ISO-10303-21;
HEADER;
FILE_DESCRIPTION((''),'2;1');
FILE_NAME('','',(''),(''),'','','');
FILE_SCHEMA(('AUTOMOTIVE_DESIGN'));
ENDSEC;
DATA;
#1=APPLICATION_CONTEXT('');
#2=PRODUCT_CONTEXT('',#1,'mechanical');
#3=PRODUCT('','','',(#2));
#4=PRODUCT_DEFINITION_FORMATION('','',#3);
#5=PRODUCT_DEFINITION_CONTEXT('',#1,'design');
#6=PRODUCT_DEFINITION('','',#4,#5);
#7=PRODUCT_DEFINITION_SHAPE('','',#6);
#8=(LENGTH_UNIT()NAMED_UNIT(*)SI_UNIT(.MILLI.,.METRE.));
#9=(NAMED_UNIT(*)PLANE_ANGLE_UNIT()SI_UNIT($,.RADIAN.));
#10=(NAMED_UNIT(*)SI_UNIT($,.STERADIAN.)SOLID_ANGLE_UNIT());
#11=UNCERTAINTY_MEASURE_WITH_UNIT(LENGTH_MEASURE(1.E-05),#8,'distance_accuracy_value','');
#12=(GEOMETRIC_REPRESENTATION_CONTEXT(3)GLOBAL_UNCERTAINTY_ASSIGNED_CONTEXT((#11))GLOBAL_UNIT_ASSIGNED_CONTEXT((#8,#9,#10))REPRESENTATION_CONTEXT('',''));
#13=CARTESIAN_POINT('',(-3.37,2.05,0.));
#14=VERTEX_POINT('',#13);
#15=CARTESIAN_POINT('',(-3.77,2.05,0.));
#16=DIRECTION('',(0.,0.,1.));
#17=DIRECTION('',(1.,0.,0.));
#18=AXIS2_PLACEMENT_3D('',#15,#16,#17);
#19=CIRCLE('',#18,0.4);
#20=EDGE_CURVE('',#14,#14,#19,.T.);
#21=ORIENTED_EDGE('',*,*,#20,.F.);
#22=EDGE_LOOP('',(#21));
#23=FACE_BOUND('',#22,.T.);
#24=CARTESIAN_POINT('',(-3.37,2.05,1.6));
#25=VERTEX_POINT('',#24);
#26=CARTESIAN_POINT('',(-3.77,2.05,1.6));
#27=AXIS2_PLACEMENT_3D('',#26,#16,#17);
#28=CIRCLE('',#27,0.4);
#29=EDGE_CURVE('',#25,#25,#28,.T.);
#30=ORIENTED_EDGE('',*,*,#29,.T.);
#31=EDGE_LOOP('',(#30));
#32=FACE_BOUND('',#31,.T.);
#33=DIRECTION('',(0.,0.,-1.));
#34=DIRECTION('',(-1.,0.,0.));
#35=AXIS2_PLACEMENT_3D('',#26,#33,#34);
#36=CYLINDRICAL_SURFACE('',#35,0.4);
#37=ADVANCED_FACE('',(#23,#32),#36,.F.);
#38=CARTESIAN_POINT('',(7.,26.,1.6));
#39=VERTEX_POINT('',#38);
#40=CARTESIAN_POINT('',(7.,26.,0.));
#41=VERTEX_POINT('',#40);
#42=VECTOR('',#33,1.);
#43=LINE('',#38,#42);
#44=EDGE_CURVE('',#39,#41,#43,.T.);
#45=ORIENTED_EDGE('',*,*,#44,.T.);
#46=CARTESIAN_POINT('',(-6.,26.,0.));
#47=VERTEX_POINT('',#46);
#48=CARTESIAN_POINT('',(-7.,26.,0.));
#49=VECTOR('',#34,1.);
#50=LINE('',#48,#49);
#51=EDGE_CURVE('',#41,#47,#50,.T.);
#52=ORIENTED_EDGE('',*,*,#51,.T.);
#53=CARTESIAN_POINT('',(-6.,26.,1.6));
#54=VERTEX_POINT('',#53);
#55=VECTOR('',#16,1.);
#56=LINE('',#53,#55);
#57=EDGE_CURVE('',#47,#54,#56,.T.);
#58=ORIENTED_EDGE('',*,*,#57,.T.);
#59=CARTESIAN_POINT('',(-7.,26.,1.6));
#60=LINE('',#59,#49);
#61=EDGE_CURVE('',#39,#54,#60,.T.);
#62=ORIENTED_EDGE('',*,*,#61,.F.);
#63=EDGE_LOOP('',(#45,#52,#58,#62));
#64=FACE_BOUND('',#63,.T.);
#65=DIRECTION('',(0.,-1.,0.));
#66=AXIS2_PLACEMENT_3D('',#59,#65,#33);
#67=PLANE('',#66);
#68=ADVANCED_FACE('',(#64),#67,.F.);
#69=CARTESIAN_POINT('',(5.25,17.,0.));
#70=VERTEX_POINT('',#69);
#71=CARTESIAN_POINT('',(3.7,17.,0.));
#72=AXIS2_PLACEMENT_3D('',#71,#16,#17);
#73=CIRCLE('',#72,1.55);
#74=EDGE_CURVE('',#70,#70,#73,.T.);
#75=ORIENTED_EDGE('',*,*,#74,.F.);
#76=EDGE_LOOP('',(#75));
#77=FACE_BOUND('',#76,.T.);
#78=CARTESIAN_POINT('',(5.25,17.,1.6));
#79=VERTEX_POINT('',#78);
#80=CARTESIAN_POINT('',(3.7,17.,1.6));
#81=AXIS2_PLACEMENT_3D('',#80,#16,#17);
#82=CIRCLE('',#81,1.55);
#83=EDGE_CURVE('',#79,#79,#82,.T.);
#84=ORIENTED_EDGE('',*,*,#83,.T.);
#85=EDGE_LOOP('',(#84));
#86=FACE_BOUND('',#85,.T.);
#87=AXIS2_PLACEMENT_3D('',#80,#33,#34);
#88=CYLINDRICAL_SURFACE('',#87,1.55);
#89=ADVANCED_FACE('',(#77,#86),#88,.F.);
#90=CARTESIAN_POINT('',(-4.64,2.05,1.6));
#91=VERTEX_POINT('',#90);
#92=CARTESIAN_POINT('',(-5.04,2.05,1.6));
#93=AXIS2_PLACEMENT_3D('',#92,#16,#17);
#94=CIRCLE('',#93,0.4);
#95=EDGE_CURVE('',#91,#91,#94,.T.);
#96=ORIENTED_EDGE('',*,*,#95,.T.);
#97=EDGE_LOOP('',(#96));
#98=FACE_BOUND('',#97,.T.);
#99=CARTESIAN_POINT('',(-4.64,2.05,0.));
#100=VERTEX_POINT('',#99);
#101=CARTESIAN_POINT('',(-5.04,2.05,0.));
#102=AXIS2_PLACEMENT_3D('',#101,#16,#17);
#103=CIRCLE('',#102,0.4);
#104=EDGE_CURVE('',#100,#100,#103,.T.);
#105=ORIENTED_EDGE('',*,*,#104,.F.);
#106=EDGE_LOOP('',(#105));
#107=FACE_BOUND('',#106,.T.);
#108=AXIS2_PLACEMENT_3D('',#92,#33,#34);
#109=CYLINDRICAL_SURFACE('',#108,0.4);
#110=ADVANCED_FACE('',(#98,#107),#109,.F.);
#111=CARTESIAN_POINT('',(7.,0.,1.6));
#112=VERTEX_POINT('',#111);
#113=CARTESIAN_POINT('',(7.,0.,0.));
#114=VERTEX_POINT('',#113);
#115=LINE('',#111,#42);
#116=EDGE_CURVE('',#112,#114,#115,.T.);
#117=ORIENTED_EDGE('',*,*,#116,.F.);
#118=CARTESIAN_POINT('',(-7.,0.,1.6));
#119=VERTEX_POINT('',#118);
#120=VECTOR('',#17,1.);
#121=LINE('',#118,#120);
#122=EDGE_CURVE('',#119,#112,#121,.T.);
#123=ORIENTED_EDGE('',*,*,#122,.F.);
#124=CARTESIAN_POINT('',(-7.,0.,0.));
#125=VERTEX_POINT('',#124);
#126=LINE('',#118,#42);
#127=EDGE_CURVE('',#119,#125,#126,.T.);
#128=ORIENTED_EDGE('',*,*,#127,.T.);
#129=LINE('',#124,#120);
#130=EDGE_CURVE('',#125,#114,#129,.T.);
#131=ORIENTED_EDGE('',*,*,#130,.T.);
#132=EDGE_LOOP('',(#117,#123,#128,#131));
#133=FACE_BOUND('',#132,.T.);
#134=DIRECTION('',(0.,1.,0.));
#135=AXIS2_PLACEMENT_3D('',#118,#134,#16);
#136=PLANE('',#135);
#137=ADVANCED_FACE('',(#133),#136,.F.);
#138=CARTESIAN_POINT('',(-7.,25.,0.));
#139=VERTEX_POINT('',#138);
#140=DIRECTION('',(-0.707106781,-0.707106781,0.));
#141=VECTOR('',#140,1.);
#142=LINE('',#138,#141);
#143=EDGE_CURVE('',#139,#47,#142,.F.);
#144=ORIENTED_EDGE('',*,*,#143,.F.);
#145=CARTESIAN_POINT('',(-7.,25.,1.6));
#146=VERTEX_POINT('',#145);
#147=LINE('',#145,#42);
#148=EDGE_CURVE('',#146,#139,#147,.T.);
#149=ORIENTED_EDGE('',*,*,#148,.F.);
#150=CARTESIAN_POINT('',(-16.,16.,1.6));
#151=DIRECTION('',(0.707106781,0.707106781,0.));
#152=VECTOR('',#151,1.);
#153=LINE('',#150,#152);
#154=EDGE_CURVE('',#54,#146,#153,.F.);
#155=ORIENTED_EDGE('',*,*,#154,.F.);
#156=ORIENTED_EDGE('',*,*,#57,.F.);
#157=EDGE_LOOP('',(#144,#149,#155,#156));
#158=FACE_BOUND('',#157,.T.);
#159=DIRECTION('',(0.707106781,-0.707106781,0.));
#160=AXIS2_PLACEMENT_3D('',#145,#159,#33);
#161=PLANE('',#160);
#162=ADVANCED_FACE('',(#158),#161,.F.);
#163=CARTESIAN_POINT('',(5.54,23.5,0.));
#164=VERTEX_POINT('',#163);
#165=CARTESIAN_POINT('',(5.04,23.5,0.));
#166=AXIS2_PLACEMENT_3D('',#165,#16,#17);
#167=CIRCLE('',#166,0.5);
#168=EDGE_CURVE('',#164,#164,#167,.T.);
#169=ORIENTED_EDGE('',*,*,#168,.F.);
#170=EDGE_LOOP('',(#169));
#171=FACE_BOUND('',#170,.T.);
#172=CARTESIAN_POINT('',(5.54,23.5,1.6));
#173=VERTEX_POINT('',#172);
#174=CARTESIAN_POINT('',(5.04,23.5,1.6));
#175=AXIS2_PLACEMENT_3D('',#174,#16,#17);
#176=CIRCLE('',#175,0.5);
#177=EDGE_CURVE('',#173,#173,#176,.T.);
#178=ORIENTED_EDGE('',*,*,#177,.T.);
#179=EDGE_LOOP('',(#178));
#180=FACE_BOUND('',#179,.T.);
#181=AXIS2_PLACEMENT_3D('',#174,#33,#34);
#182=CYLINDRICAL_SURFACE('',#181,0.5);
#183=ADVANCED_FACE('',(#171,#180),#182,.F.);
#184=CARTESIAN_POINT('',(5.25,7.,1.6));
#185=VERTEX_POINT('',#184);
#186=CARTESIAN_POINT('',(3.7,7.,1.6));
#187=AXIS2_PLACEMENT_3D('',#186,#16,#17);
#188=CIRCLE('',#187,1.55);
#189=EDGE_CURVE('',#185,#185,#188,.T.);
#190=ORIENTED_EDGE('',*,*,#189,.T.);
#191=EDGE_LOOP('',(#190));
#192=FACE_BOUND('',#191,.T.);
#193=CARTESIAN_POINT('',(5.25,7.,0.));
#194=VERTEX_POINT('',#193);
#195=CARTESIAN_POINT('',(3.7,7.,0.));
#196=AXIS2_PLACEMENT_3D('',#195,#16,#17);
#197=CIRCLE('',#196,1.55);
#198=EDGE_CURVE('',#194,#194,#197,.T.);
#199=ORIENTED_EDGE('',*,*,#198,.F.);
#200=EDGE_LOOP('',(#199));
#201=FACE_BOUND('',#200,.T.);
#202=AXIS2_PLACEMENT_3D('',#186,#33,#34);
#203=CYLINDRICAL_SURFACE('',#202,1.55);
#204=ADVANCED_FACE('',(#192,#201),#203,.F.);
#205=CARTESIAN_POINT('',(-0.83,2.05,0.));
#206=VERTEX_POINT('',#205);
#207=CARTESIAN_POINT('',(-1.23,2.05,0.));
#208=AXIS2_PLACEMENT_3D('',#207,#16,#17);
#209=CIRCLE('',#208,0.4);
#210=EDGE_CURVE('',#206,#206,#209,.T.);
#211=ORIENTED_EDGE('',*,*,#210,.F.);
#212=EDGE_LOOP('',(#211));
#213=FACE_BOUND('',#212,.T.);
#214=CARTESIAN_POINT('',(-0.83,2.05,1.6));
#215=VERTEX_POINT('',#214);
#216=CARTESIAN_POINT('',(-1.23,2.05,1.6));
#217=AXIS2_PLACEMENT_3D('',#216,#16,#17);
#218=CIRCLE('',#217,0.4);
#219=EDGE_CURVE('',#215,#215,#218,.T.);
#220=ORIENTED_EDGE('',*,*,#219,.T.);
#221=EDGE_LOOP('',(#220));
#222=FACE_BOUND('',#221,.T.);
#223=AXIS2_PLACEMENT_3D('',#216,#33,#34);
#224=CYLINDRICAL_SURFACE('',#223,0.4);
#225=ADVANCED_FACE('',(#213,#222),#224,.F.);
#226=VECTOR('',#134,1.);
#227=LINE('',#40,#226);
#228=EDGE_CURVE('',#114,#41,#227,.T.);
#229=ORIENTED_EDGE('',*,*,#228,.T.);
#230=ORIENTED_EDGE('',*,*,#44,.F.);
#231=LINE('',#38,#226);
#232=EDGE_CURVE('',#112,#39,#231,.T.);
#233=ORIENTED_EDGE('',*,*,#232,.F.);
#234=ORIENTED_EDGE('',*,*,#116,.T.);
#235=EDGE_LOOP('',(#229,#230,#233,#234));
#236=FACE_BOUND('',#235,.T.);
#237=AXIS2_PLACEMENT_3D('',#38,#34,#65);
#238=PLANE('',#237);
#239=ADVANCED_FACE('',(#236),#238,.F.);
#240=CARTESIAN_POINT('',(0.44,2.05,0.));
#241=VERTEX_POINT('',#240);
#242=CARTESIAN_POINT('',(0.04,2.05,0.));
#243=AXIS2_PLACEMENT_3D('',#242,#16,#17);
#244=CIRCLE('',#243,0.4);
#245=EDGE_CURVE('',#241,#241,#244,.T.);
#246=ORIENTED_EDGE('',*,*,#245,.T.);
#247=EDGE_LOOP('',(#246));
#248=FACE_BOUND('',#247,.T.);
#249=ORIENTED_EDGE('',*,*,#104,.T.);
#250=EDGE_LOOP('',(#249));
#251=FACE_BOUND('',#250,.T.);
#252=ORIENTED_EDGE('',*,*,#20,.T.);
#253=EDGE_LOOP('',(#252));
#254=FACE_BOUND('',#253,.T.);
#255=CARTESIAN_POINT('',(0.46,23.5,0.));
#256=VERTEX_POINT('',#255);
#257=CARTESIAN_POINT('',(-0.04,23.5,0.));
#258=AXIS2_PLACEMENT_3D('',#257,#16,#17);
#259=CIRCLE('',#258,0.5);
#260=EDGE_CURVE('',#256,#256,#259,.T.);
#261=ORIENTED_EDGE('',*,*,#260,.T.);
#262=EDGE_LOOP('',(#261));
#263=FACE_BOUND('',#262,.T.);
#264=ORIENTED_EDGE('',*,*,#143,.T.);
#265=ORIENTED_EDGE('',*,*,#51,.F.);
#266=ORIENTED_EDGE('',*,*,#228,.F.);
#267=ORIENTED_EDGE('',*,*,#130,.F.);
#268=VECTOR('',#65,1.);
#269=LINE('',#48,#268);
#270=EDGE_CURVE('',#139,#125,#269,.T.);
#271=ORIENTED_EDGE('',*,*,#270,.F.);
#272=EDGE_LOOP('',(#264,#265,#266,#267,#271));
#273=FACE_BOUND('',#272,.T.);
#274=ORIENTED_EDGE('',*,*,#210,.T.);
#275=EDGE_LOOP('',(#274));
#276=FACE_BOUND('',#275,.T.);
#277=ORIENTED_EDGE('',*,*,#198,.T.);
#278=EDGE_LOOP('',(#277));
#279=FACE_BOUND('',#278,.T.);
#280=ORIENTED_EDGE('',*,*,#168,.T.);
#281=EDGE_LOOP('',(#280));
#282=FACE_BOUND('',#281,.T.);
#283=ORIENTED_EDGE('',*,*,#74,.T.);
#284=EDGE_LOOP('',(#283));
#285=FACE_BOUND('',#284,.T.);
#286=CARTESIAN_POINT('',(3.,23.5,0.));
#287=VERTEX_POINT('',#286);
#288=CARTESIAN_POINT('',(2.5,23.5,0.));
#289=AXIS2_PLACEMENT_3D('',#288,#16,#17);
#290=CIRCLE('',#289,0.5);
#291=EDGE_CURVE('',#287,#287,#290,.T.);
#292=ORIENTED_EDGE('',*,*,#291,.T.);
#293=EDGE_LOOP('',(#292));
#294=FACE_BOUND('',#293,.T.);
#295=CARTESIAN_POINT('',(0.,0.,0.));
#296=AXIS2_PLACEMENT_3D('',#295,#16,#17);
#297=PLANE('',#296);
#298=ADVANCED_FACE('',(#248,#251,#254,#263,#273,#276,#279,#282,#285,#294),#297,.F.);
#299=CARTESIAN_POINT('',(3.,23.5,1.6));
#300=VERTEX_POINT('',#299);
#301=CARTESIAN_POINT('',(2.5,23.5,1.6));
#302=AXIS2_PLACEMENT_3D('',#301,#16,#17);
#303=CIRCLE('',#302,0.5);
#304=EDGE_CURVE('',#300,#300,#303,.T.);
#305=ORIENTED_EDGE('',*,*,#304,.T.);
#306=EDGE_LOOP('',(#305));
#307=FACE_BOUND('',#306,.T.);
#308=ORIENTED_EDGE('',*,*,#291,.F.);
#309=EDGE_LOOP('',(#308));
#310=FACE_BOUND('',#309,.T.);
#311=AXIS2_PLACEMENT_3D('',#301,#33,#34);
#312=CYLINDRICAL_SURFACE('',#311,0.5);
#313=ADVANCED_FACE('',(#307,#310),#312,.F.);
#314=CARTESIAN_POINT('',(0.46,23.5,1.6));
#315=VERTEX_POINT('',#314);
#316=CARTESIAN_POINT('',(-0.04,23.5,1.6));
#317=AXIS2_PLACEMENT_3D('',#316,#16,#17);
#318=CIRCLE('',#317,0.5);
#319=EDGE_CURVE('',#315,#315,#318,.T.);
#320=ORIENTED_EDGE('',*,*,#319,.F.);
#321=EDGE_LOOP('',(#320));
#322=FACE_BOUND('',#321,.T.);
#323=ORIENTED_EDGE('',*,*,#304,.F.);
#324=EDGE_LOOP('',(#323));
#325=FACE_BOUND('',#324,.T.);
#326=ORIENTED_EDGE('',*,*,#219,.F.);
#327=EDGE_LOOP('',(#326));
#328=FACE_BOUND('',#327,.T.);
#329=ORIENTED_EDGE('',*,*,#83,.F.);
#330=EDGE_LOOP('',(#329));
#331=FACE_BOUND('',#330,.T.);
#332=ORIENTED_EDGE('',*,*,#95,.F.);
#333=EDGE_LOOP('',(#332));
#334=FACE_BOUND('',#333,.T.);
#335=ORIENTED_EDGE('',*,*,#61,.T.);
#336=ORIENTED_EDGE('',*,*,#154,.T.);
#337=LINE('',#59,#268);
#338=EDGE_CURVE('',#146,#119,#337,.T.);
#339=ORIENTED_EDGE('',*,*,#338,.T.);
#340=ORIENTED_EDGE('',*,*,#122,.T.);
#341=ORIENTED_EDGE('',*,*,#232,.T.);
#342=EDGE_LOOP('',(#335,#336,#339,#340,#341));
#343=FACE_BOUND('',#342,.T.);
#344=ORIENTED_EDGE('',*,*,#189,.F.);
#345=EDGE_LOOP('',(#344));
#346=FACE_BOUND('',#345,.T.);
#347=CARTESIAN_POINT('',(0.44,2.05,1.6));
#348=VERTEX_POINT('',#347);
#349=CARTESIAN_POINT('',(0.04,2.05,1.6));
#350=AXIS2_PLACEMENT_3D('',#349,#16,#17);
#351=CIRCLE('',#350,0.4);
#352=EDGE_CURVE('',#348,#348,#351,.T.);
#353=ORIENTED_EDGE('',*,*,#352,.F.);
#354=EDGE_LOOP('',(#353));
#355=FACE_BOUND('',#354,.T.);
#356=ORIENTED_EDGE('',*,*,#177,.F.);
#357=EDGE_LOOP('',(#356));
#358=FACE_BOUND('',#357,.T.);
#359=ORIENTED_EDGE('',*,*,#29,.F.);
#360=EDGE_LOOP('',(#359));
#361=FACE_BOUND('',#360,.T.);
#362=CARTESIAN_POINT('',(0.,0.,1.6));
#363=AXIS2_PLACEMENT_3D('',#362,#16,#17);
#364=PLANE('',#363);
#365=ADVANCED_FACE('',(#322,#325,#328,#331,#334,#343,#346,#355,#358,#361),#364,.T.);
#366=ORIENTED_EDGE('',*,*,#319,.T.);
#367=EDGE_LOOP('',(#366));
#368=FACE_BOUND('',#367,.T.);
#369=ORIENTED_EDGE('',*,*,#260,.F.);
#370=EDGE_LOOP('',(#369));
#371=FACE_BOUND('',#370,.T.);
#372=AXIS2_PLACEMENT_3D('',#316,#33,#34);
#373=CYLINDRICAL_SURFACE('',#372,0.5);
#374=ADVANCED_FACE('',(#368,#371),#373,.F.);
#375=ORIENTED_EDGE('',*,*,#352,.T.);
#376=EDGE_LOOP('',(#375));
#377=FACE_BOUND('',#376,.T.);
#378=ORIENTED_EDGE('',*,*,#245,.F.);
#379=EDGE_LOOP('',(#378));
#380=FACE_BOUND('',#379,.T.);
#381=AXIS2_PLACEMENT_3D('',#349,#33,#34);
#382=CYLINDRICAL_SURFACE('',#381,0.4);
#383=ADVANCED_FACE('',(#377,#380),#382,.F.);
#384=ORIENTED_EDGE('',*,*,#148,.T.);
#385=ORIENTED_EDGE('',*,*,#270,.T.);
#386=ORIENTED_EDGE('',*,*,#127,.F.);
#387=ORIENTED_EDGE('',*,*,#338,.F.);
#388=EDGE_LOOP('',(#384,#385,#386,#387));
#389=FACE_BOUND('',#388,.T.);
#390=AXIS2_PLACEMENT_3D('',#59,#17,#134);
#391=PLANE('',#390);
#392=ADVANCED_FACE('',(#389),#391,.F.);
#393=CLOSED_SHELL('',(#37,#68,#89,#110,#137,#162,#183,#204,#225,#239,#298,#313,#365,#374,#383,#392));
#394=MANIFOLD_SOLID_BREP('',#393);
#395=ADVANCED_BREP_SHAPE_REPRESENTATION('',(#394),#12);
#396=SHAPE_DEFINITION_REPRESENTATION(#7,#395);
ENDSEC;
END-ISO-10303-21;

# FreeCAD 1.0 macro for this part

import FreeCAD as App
import Part
import Sketcher

V = App.Vector
Q = App.Units.Quantity


def edges_at(feature, points):
    """Names of the edges that pass closest to the given points."""
    edges = feature.Shape.Edges
    near = lambda p: min(range(len(edges)), key=lambda i: edges[i].distToShape(Part.Vertex(*p))[0])
    return sorted({f"Edge{near(p) + 1}" for p in points})


def add_polygon(sketch, points):
    """Adds a closed chain of lines whose ends are joined by coincident constraints."""
    first, n = sketch.GeometryCount, len(points)
    for a, b in zip(points, points[1:] + points[:1]):
        sketch.addGeometry(Part.LineSegment(App.Vector(*a, 0), App.Vector(*b, 0)), False)
    for i in range(n):
        sketch.addConstraint(Sketcher.Constraint("Coincident", first + i, 2, first + (i + 1) % n, 1))

doc = App.newDocument("Part")
body = doc.addObject("PartDesign::Body", "Body")

sketch1 = doc.addObject("Sketcher::SketchObject", "Sketch")
body.addObject(sketch1)
sketch1.AttachmentSupport = (doc.XY_Plane, [""])
sketch1.MapMode = "FlatFace"
add_polygon(sketch1, [(-7, 26), (-7, 0), (7, 0), (7, 26)])
sketch1.addGeometry(Part.Circle(V(-5.04, 2.05, 0), V(0, 0, 1), 0.4), False)
sketch1.addGeometry(Part.Circle(V(-3.77, 2.05, 0), V(0, 0, 1), 0.4), False)
sketch1.addGeometry(Part.Circle(V(-1.23, 2.05, 0), V(0, 0, 1), 0.4), False)
sketch1.addGeometry(Part.Circle(V(0.04, 2.05, 0), V(0, 0, 1), 0.4), False)
sketch1.addGeometry(Part.Circle(V(3.7, 7, 0), V(0, 0, 1), 1.55), False)
sketch1.addGeometry(Part.Circle(V(-0.04, 23.5, 0), V(0, 0, 1), 0.5), False)
sketch1.addGeometry(Part.Circle(V(3.7, 17, 0), V(0, 0, 1), 1.55), False)
sketch1.addGeometry(Part.Circle(V(2.5, 23.5, 0), V(0, 0, 1), 0.5), False)
sketch1.addGeometry(Part.Circle(V(5.04, 23.5, 0), V(0, 0, 1), 0.5), False)
sketch1.addConstraint(Sketcher.Constraint("Vertical", 0))
sketch1.addConstraint(Sketcher.Constraint("Horizontal", 1))
sketch1.addConstraint(Sketcher.Constraint("Vertical", 2))
sketch1.addConstraint(Sketcher.Constraint("Horizontal", 3))
sketch1.addConstraint(Sketcher.Constraint("Equal", 4, 5))
sketch1.addConstraint(Sketcher.Constraint("Equal", 5, 6))
sketch1.addConstraint(Sketcher.Constraint("Equal", 6, 7))
sketch1.addConstraint(Sketcher.Constraint("Equal", 8, 10))
sketch1.addConstraint(Sketcher.Constraint("Equal", 9, 11))
sketch1.addConstraint(Sketcher.Constraint("Equal", 11, 12))
sketch1.addConstraint(Sketcher.Constraint("Symmetric", 0, 2, 1, 2, -1, 1))
sketch1.addConstraint(Sketcher.Constraint("Horizontal", 4, 3, 5, 3))
sketch1.addConstraint(Sketcher.Constraint("Horizontal", 5, 3, 6, 3))
sketch1.addConstraint(Sketcher.Constraint("Horizontal", 6, 3, 7, 3))
sketch1.addConstraint(Sketcher.Constraint("Horizontal", 9, 3, 11, 3))
sketch1.addConstraint(Sketcher.Constraint("Horizontal", 11, 3, 12, 3))
sketch1.addConstraint(Sketcher.Constraint("Vertical", 8, 3, 10, 3))
sketch1.addConstraint(Sketcher.Constraint("Diameter", 9, Q("1 mm")))
sketch1.addConstraint(Sketcher.Constraint("Diameter", 4, Q("0.8 mm")))
sketch1.addConstraint(Sketcher.Constraint("Diameter", 8, Q("3.1 mm")))
sketch1.addConstraint(Sketcher.Constraint("DistanceX", 1, 1, 1, 2, Q("14 mm")))
sketch1.addConstraint(Sketcher.Constraint("DistanceY", 0, 2, 0, 1, Q("26 mm")))
sketch1.addConstraint(Sketcher.Constraint("DistanceY", -1, 1, 8, 3, Q("7 mm")))
sketch1.addConstraint(Sketcher.Constraint("DistanceY", -1, 1, 10, 3, Q("17 mm")))
sketch1.addConstraint(Sketcher.Constraint("DistanceX", 4, 3, 9, 3, Q("5 mm")))
sketch1.addConstraint(Sketcher.Constraint("DistanceX", 7, 3, 12, 3, Q("5 mm")))
sketch1.addConstraint(Sketcher.Constraint("DistanceX", -1, 1, 8, 3, Q("3.7 mm")))
sketch1.addConstraint(Sketcher.Constraint("DistanceY", -1, 1, 9, 3, Q("23.5 mm")))
sketch1.addConstraint(Sketcher.Constraint("DistanceX", -1, 1, 11, 3, Q("2.5 mm")))
sketch1.addConstraint(Sketcher.Constraint("DistanceX", 4, 3, -1, 1, Q("5.04 mm")))
sketch1.addConstraint(Sketcher.Constraint("DistanceY", -1, 1, 4, 3, Q("2.05 mm")))
sketch1.addConstraint(Sketcher.Constraint("DistanceX", 5, 3, -1, 1, Q("3.77 mm")))
sketch1.addConstraint(Sketcher.Constraint("DistanceX", 6, 3, -1, 1, Q("1.23 mm")))
sketch1.addConstraint(Sketcher.Constraint("DistanceX", -1, 1, 7, 3, Q("0.04 mm")))
pad1 = doc.addObject("PartDesign::Pad", "Pad")
body.addObject(pad1)
pad1.Profile = sketch1
pad1.Length = 1.6
doc.recompute()

chamfer = doc.addObject("PartDesign::Chamfer", "Chamfer")
body.addObject(chamfer)
chamfer.Base = (pad1, edges_at(pad1, [(-7, 26, 0.8)]))
chamfer.Size = 1

doc.recompute()
